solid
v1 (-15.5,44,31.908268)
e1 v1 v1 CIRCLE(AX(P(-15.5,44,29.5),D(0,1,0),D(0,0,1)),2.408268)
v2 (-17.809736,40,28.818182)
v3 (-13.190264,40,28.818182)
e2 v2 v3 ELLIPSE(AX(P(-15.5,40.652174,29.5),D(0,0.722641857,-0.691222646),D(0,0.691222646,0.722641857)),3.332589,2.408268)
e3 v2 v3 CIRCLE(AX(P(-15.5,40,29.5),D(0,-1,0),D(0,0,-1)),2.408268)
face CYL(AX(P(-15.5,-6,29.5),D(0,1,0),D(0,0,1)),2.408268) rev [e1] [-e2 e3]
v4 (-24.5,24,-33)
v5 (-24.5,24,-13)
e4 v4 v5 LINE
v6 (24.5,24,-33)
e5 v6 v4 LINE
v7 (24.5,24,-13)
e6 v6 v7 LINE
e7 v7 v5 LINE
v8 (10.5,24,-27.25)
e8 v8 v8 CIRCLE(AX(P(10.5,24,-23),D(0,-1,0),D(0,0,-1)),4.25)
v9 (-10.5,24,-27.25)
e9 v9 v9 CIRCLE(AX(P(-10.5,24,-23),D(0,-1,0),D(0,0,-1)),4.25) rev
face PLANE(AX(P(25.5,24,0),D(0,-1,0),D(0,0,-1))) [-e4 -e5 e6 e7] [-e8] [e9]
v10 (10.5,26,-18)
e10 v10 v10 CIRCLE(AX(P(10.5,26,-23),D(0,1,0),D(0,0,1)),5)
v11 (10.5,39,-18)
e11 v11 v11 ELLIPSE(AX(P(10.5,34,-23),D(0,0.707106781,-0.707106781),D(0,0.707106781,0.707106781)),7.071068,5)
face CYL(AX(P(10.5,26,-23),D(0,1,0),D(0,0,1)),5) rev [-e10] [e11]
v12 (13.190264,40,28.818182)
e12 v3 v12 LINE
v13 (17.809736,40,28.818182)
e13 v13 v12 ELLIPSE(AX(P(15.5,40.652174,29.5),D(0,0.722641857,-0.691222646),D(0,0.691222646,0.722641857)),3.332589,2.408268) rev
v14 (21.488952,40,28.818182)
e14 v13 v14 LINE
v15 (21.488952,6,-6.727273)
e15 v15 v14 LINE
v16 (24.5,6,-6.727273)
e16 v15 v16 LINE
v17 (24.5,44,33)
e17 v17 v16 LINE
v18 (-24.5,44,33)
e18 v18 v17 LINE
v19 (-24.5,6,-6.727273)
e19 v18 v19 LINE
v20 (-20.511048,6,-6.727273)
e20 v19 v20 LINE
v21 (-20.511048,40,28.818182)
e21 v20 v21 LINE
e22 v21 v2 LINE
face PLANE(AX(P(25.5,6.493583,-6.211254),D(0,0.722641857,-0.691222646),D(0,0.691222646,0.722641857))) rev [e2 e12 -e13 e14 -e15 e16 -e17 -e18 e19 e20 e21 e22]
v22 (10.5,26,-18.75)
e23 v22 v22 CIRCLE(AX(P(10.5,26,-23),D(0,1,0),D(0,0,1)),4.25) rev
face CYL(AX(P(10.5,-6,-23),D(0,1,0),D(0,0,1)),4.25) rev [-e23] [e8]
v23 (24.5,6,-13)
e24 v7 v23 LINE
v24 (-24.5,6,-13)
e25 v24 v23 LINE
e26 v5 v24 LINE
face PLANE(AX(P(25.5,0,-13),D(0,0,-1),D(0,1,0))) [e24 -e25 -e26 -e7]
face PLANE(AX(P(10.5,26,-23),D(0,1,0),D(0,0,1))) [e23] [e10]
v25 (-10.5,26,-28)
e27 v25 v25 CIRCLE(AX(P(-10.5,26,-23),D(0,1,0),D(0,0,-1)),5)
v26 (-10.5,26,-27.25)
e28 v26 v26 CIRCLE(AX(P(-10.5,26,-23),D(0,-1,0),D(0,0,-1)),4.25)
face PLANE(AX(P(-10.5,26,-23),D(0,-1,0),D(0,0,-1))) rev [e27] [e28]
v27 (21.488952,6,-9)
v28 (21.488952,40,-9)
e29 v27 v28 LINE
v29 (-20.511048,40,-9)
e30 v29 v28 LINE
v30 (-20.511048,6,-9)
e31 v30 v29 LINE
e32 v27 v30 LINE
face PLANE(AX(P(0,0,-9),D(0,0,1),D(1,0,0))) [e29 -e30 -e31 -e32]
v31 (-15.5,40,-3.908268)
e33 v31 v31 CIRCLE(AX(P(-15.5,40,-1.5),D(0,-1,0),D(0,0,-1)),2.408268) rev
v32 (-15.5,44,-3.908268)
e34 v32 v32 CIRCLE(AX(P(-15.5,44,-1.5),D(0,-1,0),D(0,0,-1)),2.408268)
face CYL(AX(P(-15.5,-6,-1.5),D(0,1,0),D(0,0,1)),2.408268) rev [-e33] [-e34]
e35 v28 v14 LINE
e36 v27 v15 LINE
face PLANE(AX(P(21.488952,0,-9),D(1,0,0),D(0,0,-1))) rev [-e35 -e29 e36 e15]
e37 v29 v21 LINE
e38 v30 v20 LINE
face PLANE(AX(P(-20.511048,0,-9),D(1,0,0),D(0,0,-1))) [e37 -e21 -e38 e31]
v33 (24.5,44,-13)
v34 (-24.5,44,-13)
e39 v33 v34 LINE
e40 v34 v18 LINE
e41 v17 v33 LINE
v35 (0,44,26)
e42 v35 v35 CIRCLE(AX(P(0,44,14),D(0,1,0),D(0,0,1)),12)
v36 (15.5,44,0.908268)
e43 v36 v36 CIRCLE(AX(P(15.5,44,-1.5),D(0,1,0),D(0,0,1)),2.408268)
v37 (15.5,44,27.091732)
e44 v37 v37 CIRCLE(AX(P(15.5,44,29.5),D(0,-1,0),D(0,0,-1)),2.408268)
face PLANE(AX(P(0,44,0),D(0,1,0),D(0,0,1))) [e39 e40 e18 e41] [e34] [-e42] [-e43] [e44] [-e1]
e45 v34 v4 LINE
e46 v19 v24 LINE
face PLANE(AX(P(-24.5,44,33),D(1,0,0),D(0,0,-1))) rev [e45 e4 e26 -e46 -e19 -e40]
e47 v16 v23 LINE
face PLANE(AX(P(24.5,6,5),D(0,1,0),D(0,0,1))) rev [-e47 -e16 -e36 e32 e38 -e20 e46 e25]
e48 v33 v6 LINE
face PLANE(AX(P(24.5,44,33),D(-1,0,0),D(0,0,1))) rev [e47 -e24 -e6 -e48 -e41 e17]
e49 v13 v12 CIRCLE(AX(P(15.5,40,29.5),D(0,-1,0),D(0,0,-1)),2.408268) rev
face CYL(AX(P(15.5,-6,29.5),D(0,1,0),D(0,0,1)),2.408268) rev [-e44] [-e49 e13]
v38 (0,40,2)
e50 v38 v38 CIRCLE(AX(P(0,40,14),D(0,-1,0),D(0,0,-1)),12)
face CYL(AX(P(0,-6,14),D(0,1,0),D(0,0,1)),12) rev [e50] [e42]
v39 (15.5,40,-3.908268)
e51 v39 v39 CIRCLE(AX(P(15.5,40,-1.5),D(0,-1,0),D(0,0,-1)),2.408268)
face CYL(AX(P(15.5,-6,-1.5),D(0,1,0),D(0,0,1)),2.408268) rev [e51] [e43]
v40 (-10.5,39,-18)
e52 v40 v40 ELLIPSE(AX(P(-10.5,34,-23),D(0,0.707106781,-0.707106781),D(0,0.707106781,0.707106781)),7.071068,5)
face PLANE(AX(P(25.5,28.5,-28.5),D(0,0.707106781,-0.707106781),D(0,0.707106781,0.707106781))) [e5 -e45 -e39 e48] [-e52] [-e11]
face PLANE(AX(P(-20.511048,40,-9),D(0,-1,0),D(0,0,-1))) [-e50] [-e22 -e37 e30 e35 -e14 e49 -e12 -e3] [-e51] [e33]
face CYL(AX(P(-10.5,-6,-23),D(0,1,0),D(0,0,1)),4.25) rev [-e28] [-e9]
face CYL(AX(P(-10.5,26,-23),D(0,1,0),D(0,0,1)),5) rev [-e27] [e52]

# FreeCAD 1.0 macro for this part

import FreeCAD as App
import Part
import Sketcher
Q = App.Units.Quantity


def add_polygon(sketch, points):
    """Adds a closed chain of lines whose ends are joined by coincident constraints."""
    first, n = sketch.GeometryCount, len(points)
    for a, b in zip(points, points[1:] + points[:1]):
        sketch.addGeometry(Part.LineSegment(App.Vector(*a, 0), App.Vector(*b, 0)), False)
    for i in range(n):
        sketch.addConstraint(Sketcher.Constraint("Coincident", first + i, 2, first + (i + 1) % n, 1))

doc = App.newDocument("Part")
body = doc.addObject("PartDesign::Body", "Body")

# Sketch on XZ plane
sketch1 = body.newObject("Sketcher::SketchObject", "Sketch")
sketch1.AttachmentSupport = (doc.getObject("XZ_Plane"), [""])
sketch1.MapMode = "FlatFace"
add_polygon(sketch1, [(-24.5, -33), (-24.5, 33), (24.5, 33), (24.5, -33)])  # lines 0-3
sketch1.addConstraint([
    Sketcher.Constraint("Vertical", 0),
    Sketcher.Constraint("Horizontal", 1),
    Sketcher.Constraint("Vertical", 2),
    Sketcher.Constraint("Horizontal", 3),
    Sketcher.Constraint("Symmetric", 0, 2, 2, 2, -1, 1),
    Sketcher.Constraint("DistanceX", 1, 1, 1, 2, Q("49 mm")),
    Sketcher.Constraint("DistanceY", 0, 1, 0, 2, Q("66 mm")),
])
pad1 = body.newObject("PartDesign::Pad", "Pad")
pad1.Profile = sketch1
pad1.Length = 44
pad1.Reversed = True

# Sketch on XY plane
sketch2 = body.newObject("Sketcher::SketchObject", "Sketch001")
sketch2.AttachmentSupport = (doc.getObject("XY_Plane"), [""])
sketch2.MapMode = "FlatFace"
sketch2.AttachmentOffset = App.Placement(App.Vector(0, 0, 33), App.Rotation())
add_polygon(sketch2, [(-20.511048, 40), (-20.511048, 0), (21.488952, 0), (21.488952, 40)])  # lines 0-3
sketch2.addConstraint([
    Sketcher.Constraint("Vertical", 0),
    Sketcher.Constraint("Horizontal", 1),
    Sketcher.Constraint("Vertical", 2),
    Sketcher.Constraint("Horizontal", 3),
    Sketcher.Constraint("PointOnObject", 0, 2, -1),
    Sketcher.Constraint("DistanceX", 1, 1, 1, 2, Q("42 mm")),
    Sketcher.Constraint("DistanceY", 0, 2, 0, 1, Q("40 mm")),
    Sketcher.Constraint("DistanceX", 0, 2, -1, 1, Q("20.511048 mm")),
])
pocket1 = body.newObject("PartDesign::Pocket", "Pocket")
pocket1.Profile = sketch2
pocket1.Length = 42

# Sketch on YZ plane
sketch3 = body.newObject("Sketcher::SketchObject", "Sketch002")
sketch3.AttachmentSupport = (doc.getObject("YZ_Plane"), [""])
sketch3.MapMode = "FlatFace"
sketch3.AttachmentOffset = App.Placement(App.Vector(0, 0, -24.5), App.Rotation())
add_polygon(sketch3, [(24, -33), (44, -13), (44, -33)])  # lines 0-2
add_polygon(sketch3, [(24, -33), (0, -33), (0, -13), (24, -13)])  # lines 3-6
add_polygon(sketch3, [(0, 33), (44, 33), (0, -13)])  # lines 7-9
sketch3.addConstraint([
    Sketcher.Constraint("Vertical", 1),
    Sketcher.Constraint("Horizontal", 2),
    Sketcher.Constraint("Horizontal", 3),
    Sketcher.Constraint("Vertical", 4),
    Sketcher.Constraint("Horizontal", 5),
    Sketcher.Constraint("Vertical", 6),
    Sketcher.Constraint("Horizontal", 7),
    Sketcher.Constraint("Vertical", 9),
    Sketcher.Constraint("Coincident", 6, 2, 2, 2),
    Sketcher.Constraint("Coincident", 8, 2, 4, 2),
    Sketcher.Constraint("Symmetric", 3, 2, 9, 2, -1, 1),
    Sketcher.Constraint("Horizontal", 0, 2, 4, 2),
    Sketcher.Constraint("Vertical", 1, 2, 7, 2),
    Sketcher.Constraint("Equal", 2, 1),
    Sketcher.Constraint("DistanceX", 2, 2, 2, 1, Q("20 mm")),
    Sketcher.Constraint("DistanceX", 3, 2, 3, 1, Q("24 mm")),
    Sketcher.Constraint("DistanceY", 9, 1, 9, 2, Q("46 mm")),
])
pocket2 = body.newObject("PartDesign::Pocket", "Pocket001")
pocket2.Profile = sketch3
pocket2.Length = 50
pocket2.Reversed = True

# Sketch on XZ plane
sketch4 = body.newObject("Sketcher::SketchObject", "Sketch003")
sketch4.AttachmentSupport = (doc.getObject("XZ_Plane"), [""])
sketch4.MapMode = "FlatFace"
sketch4.AttachmentOffset = App.Placement(App.Vector(0, 0, -44), App.Rotation())
sketch4.addGeometry([
    Part.Circle(App.Vector(0, 14, 0), App.Vector(0, 0, 1), 12),  # 0
    Part.Circle(App.Vector(15.5, -1.5, 0), App.Vector(0, 0, 1), 2.408268),  # 1
    Part.Circle(App.Vector(10.5, -23, 0), App.Vector(0, 0, 1), 4.25),  # 2
    Part.Circle(App.Vector(-10.5, -23, 0), App.Vector(0, 0, 1), 4.25),  # 3
    Part.Circle(App.Vector(15.5, 29.5, 0), App.Vector(0, 0, 1), 2.408268),  # 4
    Part.Circle(App.Vector(-15.5, 29.5, 0), App.Vector(0, 0, 1), 2.408268),  # 5
    Part.Circle(App.Vector(-15.5, -1.5, 0), App.Vector(0, 0, 1), 2.408268),  # 6
], False)
sketch4.addConstraint([
    Sketcher.Constraint("Equal", 2, 3),
    Sketcher.Constraint("Equal", 1, 4),
    Sketcher.Constraint("Equal", 4, 5),
    Sketcher.Constraint("Equal", 5, 6),
    Sketcher.Constraint("Symmetric", 2, 3, 3, 3, -2),
    Sketcher.Constraint("Symmetric", 4, 3, 5, 3, -2),
    Sketcher.Constraint("Symmetric", 1, 3, 6, 3, -2),
    Sketcher.Constraint("PointOnObject", 0, 3, -2),
    Sketcher.Constraint("Vertical", 1, 3, 4, 3),
    Sketcher.Constraint("Diameter", 0, Q("24 mm")),
    Sketcher.Constraint("Diameter", 2, Q("8.5 mm")),
    Sketcher.Constraint("DistanceY", -1, 1, 0, 3, Q("14 mm")),
    Sketcher.Constraint("DistanceY", 2, 3, -1, 1, Q("23 mm")),
    Sketcher.Constraint("DistanceX", 2, 3, 1, 3, Q("5 mm")),
    Sketcher.Constraint("DistanceX", 3, 3, 2, 3, Q("21 mm")),
    Sketcher.Constraint("DistanceY", 1, 3, 4, 3, Q("31 mm")),
    Sketcher.Constraint("DistanceY", 1, 3, -1, 1, Q("1.5 mm")),
    Sketcher.Constraint("Diameter", 1, Q("4.816536 mm")),
])
pocket3 = body.newObject("PartDesign::Pocket", "Pocket002")
pocket3.Profile = sketch4
pocket3.Length = 50
pocket3.Reversed = True

# Sketch on XZ plane
sketch5 = body.newObject("Sketcher::SketchObject", "Sketch004")
sketch5.AttachmentSupport = (doc.getObject("XZ_Plane"), [""])
sketch5.MapMode = "FlatFace"
sketch5.AttachmentOffset = App.Placement(App.Vector(0, 0, -44), App.Rotation())
sketch5.addGeometry([
    Part.Circle(App.Vector(10.5, -23, 0), App.Vector(0, 0, 1), 5),
    Part.Circle(App.Vector(-10.5, -23, 0), App.Vector(0, 0, 1), 5),
], False)
sketch5.addConstraint([
    Sketcher.Constraint("Equal", 0, 1),
    Sketcher.Constraint("Symmetric", 0, 3, 1, 3, -2),
    Sketcher.Constraint("Diameter", 0, Q("10 mm")),
    Sketcher.Constraint("DistanceY", 0, 3, -1, 1, Q("23 mm")),
    Sketcher.Constraint("DistanceX", 1, 3, 0, 3, Q("21 mm")),
])
pocket4 = body.newObject("PartDesign::Pocket", "Pocket003")
pocket4.Profile = sketch5
pocket4.Length = 18
pocket4.Reversed = True

# Sketch on XY plane
sketch6 = body.newObject("Sketcher::SketchObject", "Sketch005")
sketch6.AttachmentSupport = (doc.getObject("XY_Plane"), [""])
sketch6.MapMode = "FlatFace"
sketch6.AttachmentOffset = App.Placement(App.Vector(0, 0, -13), App.Rotation())
add_polygon(sketch6, [(24.5, 6), (24.5, 0), (-24.5, 0), (-24.5, 6)])  # lines 0-3
sketch6.addConstraint([
    Sketcher.Constraint("Vertical", 0),
    Sketcher.Constraint("Horizontal", 1),
    Sketcher.Constraint("Vertical", 2),
    Sketcher.Constraint("Horizontal", 3),
    Sketcher.Constraint("Symmetric", 0, 2, 1, 2, -1, 1),
    Sketcher.Constraint("DistanceX", 1, 2, 1, 1, Q("49 mm")),
    Sketcher.Constraint("DistanceY", 0, 2, 0, 1, Q("6 mm")),
])
pocket5 = body.newObject("PartDesign::Pocket", "Pocket004")
pocket5.Profile = sketch6
pocket5.Length = 18
pocket5.Reversed = True

doc.recompute()
